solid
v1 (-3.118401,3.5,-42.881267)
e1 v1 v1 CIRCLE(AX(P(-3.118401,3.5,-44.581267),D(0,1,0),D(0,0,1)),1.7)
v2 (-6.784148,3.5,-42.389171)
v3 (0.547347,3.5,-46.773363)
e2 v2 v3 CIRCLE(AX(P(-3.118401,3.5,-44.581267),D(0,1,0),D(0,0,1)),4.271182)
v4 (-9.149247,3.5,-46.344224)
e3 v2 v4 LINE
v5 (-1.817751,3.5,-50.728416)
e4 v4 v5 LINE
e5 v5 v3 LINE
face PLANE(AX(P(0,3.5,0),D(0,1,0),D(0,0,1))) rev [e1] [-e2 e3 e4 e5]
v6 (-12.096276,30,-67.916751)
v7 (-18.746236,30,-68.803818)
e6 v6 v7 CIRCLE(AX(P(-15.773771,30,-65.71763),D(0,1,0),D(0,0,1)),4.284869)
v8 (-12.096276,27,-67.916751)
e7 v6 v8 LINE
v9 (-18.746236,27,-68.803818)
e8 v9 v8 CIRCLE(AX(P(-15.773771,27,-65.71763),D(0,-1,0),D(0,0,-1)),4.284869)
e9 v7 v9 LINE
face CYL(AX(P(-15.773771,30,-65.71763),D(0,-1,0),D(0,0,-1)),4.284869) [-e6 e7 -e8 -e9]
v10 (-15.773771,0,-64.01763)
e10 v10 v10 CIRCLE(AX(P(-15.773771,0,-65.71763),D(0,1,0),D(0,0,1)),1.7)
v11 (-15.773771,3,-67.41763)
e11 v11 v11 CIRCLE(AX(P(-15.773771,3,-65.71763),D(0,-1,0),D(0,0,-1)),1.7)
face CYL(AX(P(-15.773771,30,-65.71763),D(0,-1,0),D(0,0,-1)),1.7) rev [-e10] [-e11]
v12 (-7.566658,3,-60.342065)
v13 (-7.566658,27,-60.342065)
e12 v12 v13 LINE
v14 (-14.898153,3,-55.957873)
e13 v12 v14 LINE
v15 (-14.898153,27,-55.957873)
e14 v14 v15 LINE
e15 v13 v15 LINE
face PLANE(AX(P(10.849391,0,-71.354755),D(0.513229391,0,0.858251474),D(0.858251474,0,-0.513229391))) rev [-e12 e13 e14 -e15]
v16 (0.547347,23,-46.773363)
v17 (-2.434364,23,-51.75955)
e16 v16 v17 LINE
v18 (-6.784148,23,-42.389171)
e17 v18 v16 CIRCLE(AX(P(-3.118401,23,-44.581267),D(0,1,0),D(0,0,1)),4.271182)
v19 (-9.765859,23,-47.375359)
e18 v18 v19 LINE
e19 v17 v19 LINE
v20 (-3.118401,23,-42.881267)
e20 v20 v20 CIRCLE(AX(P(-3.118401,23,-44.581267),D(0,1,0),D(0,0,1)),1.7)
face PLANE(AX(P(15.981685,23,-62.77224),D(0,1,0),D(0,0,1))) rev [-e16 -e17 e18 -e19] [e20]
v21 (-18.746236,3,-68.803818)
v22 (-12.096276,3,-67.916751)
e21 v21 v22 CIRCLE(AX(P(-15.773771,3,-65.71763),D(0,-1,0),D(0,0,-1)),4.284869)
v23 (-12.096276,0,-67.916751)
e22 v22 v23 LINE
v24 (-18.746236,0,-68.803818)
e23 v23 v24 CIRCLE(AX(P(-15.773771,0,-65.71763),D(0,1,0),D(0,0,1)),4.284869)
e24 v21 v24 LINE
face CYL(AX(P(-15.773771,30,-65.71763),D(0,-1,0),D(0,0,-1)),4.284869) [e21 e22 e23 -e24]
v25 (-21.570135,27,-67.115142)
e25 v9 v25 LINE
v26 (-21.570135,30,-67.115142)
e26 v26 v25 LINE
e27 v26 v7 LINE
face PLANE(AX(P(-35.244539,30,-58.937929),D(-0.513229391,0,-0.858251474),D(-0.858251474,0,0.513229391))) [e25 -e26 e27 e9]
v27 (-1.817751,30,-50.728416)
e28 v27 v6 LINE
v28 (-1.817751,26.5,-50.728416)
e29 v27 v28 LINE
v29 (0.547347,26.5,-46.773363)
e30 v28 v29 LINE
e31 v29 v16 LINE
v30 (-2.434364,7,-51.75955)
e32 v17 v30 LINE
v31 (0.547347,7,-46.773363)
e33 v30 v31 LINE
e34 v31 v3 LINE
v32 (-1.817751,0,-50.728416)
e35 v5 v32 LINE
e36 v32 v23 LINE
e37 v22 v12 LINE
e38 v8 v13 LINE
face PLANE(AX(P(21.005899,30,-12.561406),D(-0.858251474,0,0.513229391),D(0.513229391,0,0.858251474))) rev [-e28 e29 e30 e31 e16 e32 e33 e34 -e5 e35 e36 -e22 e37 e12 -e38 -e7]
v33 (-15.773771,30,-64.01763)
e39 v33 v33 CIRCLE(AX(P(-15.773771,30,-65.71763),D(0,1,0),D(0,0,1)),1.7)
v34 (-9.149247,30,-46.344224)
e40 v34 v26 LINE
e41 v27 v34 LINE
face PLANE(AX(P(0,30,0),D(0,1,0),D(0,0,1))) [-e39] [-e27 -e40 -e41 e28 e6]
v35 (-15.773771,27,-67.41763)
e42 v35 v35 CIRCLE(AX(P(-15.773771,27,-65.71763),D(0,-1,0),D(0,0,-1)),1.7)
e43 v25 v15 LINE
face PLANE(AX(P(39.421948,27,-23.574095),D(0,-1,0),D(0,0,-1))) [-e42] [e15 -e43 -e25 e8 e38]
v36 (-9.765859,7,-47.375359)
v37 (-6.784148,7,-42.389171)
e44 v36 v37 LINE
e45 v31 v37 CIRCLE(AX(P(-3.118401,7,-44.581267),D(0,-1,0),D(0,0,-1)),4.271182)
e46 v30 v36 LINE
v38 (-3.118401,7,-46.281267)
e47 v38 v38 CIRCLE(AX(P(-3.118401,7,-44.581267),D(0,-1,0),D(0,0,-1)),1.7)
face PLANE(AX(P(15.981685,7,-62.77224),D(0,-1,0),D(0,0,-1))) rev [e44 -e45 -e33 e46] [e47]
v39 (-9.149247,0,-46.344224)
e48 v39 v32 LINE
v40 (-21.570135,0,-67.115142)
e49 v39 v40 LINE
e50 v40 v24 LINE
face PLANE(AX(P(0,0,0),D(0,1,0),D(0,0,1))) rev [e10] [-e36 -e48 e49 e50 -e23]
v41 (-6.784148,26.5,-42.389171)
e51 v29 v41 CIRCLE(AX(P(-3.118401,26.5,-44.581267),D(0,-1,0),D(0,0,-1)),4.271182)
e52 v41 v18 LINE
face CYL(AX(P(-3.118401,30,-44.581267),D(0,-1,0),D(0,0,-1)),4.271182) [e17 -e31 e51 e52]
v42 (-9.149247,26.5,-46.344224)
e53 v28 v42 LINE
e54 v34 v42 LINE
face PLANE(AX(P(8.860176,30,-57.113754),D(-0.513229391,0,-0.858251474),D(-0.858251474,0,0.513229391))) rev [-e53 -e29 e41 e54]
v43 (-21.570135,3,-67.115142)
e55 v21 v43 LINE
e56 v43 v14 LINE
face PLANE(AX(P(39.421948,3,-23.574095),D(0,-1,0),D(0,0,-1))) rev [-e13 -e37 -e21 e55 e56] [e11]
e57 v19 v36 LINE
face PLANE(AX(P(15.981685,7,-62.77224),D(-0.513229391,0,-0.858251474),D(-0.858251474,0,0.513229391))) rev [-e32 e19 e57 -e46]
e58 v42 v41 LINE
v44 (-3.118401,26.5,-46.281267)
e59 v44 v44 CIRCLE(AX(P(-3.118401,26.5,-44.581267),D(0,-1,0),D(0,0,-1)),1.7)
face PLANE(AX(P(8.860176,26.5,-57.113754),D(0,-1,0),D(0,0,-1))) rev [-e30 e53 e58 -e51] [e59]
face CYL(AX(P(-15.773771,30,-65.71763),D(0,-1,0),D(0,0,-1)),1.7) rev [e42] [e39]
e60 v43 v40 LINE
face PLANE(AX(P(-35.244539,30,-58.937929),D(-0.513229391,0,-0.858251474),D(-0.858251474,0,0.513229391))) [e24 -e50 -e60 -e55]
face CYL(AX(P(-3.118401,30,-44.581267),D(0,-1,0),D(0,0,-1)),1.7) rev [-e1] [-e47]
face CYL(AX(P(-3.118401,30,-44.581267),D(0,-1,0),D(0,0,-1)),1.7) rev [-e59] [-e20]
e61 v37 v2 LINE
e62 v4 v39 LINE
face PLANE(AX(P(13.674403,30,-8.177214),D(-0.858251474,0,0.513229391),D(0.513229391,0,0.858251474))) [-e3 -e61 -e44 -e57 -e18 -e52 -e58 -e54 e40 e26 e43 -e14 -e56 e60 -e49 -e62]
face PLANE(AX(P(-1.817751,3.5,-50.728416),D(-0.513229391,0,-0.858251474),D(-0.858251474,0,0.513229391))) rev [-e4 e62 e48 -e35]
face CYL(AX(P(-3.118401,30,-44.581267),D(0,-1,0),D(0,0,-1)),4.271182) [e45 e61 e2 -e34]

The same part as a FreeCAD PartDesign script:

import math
import FreeCAD as App
import Part
import Sketcher

V = App.Vector


def add_polygon(sketch, points):
    """Adds a closed chain of lines whose ends are joined by coincident constraints."""
    first, n = sketch.GeometryCount, len(points)
    for a, b in zip(points, points[1:] + points[:1]):
        sketch.addGeometry(Part.LineSegment(App.Vector(*a, 0), App.Vector(*b, 0)), False)
    for i in range(n):
        sketch.addConstraint(Sketcher.Constraint("Coincident", first + i, 2, first + (i + 1) % n, 1))

doc = App.newDocument("Part")
body = doc.addObject("PartDesign::Body", "Body")

# Sketch on XZ plane
sketch1 = body.newObject("Sketcher::SketchObject", "Sketch")
sketch1.AttachmentSupport = (doc.getObject("XZ_Plane"), [""])
sketch1.MapMode = "FlatFace"
sketch1.addGeometry(Part.LineSegment(V(0.5, -46.8, 0), V(-12.1, -67.9, 0)), False)
sketch1.addGeometry(Part.ArcOfCircle(Part.Circle(V(-15.8, -65.7, 0), V(0, 0, 1), 4.3), math.radians(-134), math.radians(-31)), False)
sketch1.addGeometry(Part.LineSegment(V(-18.7, -68.8, 0), V(-21.6, -67.1, 0)), False)
sketch1.addGeometry(Part.LineSegment(V(-21.6, -67.1, 0), V(-6.8, -42.4, 0)), False)
sketch1.addGeometry(Part.ArcOfCircle(Part.Circle(V(-3.1, -44.6, 0), V(0, 0, 1), 4.3), math.radians(-31), math.radians(149)), False)
sketch1.addGeometry(Part.Circle(V(-3.1, -44.6, 0), V(0, 0, 1), 1.7), False)
sketch1.addGeometry(Part.Circle(V(-15.8, -65.7, 0), V(0, 0, 1), 1.7), False)
sketch1.addConstraint(Sketcher.Constraint("Tangent", 0, 2, 1, 2))
sketch1.addConstraint(Sketcher.Constraint("Coincident", 1, 1, 2, 1))
sketch1.addConstraint(Sketcher.Constraint("Coincident", 2, 2, 3, 1))
sketch1.addConstraint(Sketcher.Constraint("Tangent", 3, 2, 4, 2))
sketch1.addConstraint(Sketcher.Constraint("Tangent", 4, 1, 0, 1))
sketch1.addConstraint(Sketcher.Constraint("Coincident", 5, 3, 4, 3))
sketch1.addConstraint(Sketcher.Constraint("Coincident", 6, 3, 1, 3))
sketch1.addConstraint(Sketcher.Constraint("Equal", 5, 6))
sketch1.addConstraint(Sketcher.Constraint("Perpendicular", 0, 2))
sketch1.addConstraint(Sketcher.Constraint("Perpendicular", 2, 3))
sketch1.addConstraint(Sketcher.Constraint("Diameter", 5, 3.4))
sketch1.addConstraint(Sketcher.Constraint("Radius", 1, 4.284869))
sketch1.addConstraint(Sketcher.Constraint("Radius", 4, 4.271182))
sketch1.addConstraint(Sketcher.Constraint("DistanceX", 4, 3, -1, 1, 3.118401))
sketch1.addConstraint(Sketcher.Constraint("DistanceX", 2, 2, 1, 1, 2.8239))
sketch1.addConstraint(Sketcher.Constraint("DistanceX", 1, 3, -1, 1, 15.773771))
sketch1.addConstraint(Sketcher.Constraint("DistanceY", 1, 3, -1, 1, 65.71763))
sketch1.addConstraint(Sketcher.Constraint("DistanceY", 0, 2, -1, 1, 67.916751))
pad1 = body.newObject("PartDesign::Pad", "Pad")
pad1.Profile = sketch1
pad1.Length = 30
pad1.Reversed = True

# Sketch on an angled plane
sketch2 = body.newObject("Sketcher::SketchObject", "Sketch001")
sketch2.Placement = App.Placement(V(13.674403, 0, -8.177214), App.Rotation(V(0.513229391, 0, 0.858251474), V(0, 1, 0), V(-0.858251474, 0, 0.513229391), "ZXY"))
add_polygon(sketch2, [(-56, 3), (-56, 27), (-76, 27), (-76, 3)])  # lines 0-3
sketch2.addConstraint(Sketcher.Constraint("Vertical", 0))
sketch2.addConstraint(Sketcher.Constraint("Horizontal", 1))
sketch2.addConstraint(Sketcher.Constraint("Vertical", 2))
sketch2.addConstraint(Sketcher.Constraint("Horizontal", 3))
sketch2.addConstraint(Sketcher.Constraint("DistanceY", 0, 1, 0, 2, 24.0))
sketch2.addConstraint(Sketcher.Constraint("DistanceY", -1, 1, 0, 2, 27.0))
sketch2.addConstraint(Sketcher.Constraint("DistanceX", 1, 2, 1, 1, 20.133538))
sketch2.addConstraint(Sketcher.Constraint("DistanceX", 0, 2, -1, 1, 55.672097))
pocket1 = body.newObject("PartDesign::Pocket", "Pocket")
pocket1.Profile = sketch2
pocket1.Length = 30

# Sketch on an angled plane
sketch3 = body.newObject("Sketcher::SketchObject", "Sketch002")
sketch3.Placement = App.Placement(V(13.674403, 0, -8.177214), App.Rotation(V(0.513229391, 0, 0.858251474), V(0, 1, 0), V(-0.858251474, 0, 0.513229391), "ZXY"))
add_polygon(sketch3, [(-46, 23), (-46, 7), (-29, 7), (-29, 23)])  # lines 0-3
sketch3.addConstraint(Sketcher.Constraint("Vertical", 0))
sketch3.addConstraint(Sketcher.Constraint("Horizontal", 1))
sketch3.addConstraint(Sketcher.Constraint("Vertical", 2))
sketch3.addConstraint(Sketcher.Constraint("Horizontal", 3))
sketch3.addConstraint(Sketcher.Constraint("DistanceY", 0, 2, 0, 1, 16.0))
sketch3.addConstraint(Sketcher.Constraint("DistanceY", -1, 1, 0, 2, 7.0))
sketch3.addConstraint(Sketcher.Constraint("DistanceX", 1, 1, 1, 2, 16.393621))
sketch3.addConstraint(Sketcher.Constraint("DistanceX", 0, 2, -1, 1, 45.672097))
pocket2 = body.newObject("PartDesign::Pocket", "Pocket001")
pocket2.Profile = sketch3
pocket2.Length = 30

# Sketch on XZ plane
sketch4 = body.newObject("Sketcher::SketchObject", "Sketch003")
sketch4.AttachmentSupport = (doc.getObject("XZ_Plane"), [""])
sketch4.MapMode = "FlatFace"
add_polygon(sketch4, [(-9, -46), (-2, -51), (3, -42), (-4, -38)])  # lines 0-3
sketch4.addConstraint(Sketcher.Constraint("Perpendicular", 0, 1))
sketch4.addConstraint(Sketcher.Constraint("Parallel", 1, 3))
sketch4.addConstraint(Sketcher.Constraint("DistanceX", 0, 2, -1, 1, 1.817751))
sketch4.addConstraint(Sketcher.Constraint("DistanceX", -1, 1, 1, 2, 3.391021))
sketch4.addConstraint(Sketcher.Constraint("DistanceY", 1, 2, -1, 1, 42.01801))
sketch4.addConstraint(Sketcher.Constraint("DistanceX", 2, 2, -1, 1, 4.210618))
sketch4.addConstraint(Sketcher.Constraint("DistanceY", 0, 2, 2, 2, 12.642849))
sketch4.addConstraint(Sketcher.Constraint("DistanceY", 0, 2, 3, 2, 4.384192))
pocket3 = body.newObject("PartDesign::Pocket", "Pocket002")
pocket3.Profile = sketch4
pocket3.Length = 3.5

# Sketch on an angled plane
sketch5 = body.newObject("Sketcher::SketchObject", "Sketch004")
sketch5.Placement = App.Placement(V(13.674403, 0, -8.177214), App.Rotation(V(0.513229391, 0, 0.858251474), V(0, 1, 0), V(-0.858251474, 0, 0.513229391), "ZXY"))
add_polygon(sketch5, [(-44.5, 26.5), (-33.4, 26.5), (-33.4, 30.5), (-44.5, 30.5)])  # lines 0-3
sketch5.addConstraint(Sketcher.Constraint("Horizontal", 0))
sketch5.addConstraint(Sketcher.Constraint("Vertical", 1))
sketch5.addConstraint(Sketcher.Constraint("Horizontal", 2))
sketch5.addConstraint(Sketcher.Constraint("Vertical", 3))
sketch5.addConstraint(Sketcher.Constraint("DistanceY", -1, 1, 0, 2, 26.5))
sketch5.addConstraint(Sketcher.Constraint("DistanceX", 0, 1, 0, 2, 11.053978))
sketch5.addConstraint(Sketcher.Constraint("DistanceY", 1, 1, 1, 2, 4.044862))
sketch5.addConstraint(Sketcher.Constraint("DistanceX", 2, 2, -1, 1, 44.470661))
pocket4 = body.newObject("PartDesign::Pocket", "Pocket003")
pocket4.Profile = sketch5
pocket4.Type = "ThroughAll"

doc.recompute()
